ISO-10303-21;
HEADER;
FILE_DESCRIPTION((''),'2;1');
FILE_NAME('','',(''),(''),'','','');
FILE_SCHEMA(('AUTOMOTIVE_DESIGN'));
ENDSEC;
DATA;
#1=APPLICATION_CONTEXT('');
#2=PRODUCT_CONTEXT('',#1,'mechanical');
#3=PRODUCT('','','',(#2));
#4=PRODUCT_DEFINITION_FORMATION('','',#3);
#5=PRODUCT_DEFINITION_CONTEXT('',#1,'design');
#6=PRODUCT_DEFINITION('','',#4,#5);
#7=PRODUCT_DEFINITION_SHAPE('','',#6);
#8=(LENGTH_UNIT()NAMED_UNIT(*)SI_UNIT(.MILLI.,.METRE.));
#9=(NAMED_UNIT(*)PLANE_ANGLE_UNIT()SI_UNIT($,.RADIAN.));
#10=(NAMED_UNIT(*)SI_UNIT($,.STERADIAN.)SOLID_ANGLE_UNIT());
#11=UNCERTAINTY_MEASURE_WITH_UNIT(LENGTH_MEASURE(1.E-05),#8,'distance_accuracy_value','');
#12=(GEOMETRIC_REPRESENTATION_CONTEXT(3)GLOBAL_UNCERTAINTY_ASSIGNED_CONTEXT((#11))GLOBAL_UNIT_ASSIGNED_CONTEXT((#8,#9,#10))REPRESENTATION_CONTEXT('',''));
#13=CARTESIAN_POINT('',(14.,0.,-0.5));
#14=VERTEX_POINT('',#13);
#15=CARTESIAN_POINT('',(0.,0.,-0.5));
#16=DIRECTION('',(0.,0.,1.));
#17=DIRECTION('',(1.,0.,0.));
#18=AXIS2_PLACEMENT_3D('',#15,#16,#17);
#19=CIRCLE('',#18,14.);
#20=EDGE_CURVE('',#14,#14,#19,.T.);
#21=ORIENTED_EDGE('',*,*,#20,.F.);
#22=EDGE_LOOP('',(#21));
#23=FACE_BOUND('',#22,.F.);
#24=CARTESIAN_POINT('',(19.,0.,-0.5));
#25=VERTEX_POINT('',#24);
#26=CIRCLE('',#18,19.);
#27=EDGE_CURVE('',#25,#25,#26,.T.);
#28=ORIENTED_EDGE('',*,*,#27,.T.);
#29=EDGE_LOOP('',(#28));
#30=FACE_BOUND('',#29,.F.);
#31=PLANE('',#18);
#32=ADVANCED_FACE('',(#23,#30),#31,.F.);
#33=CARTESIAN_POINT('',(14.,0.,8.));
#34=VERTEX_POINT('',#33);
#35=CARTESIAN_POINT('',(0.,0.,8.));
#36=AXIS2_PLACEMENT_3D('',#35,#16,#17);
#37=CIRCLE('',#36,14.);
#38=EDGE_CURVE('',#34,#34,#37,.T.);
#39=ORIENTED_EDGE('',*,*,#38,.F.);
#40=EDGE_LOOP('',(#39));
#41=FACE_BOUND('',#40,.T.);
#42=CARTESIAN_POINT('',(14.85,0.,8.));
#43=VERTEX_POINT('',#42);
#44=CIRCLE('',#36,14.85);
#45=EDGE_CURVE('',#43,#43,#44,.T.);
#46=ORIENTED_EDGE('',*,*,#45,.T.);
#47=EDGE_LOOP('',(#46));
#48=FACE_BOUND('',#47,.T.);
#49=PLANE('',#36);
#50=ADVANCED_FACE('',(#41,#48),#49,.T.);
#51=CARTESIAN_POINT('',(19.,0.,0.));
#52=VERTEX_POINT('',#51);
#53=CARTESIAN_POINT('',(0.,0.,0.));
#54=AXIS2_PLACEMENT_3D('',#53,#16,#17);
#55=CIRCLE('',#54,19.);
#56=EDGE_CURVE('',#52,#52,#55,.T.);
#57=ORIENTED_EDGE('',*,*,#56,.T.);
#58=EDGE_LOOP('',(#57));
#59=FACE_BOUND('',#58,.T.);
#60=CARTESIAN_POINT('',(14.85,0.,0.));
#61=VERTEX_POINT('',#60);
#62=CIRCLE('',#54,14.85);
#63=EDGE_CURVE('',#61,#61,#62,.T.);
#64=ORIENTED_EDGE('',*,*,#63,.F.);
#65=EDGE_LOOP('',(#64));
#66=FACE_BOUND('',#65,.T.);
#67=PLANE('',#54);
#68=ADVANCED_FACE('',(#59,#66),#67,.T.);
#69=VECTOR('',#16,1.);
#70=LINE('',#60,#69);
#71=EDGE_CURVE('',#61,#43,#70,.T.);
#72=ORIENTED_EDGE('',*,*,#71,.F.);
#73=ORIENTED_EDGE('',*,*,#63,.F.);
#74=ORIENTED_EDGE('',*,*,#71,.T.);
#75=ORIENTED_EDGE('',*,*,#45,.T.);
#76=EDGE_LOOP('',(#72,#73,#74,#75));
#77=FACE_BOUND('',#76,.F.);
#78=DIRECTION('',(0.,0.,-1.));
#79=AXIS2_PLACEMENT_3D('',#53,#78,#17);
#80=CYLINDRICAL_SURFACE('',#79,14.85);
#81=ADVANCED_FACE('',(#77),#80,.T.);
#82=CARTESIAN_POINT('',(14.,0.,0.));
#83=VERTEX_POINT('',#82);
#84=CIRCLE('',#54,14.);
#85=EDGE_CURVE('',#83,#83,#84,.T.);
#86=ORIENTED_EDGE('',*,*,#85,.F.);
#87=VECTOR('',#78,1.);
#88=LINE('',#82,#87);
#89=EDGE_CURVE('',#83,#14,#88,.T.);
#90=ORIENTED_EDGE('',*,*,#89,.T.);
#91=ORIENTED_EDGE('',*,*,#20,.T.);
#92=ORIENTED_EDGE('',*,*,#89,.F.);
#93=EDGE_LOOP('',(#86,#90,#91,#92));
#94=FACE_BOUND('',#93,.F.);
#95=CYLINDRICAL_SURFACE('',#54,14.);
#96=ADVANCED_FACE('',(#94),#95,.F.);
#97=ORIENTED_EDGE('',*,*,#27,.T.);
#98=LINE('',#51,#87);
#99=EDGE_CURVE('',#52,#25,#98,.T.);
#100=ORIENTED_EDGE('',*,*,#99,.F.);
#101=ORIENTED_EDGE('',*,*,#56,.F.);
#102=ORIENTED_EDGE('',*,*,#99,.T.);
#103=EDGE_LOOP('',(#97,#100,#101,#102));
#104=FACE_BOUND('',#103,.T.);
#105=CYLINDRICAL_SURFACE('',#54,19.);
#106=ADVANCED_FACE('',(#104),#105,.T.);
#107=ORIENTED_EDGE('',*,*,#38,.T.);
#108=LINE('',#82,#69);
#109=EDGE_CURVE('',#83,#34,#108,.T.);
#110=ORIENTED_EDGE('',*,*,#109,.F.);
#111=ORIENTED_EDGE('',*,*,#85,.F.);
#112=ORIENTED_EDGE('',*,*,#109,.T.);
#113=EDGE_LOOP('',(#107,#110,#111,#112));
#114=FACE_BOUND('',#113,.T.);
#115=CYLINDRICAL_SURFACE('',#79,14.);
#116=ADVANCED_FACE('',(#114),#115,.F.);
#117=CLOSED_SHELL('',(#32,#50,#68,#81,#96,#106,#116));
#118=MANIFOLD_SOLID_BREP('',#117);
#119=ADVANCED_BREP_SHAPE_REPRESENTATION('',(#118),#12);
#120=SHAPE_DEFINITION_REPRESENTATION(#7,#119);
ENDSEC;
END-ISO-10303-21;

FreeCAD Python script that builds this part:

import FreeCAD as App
import Part
import Sketcher
from FreeCAD import Vector
Q = App.Units.Quantity

doc = App.newDocument("Part")
body = doc.addObject("PartDesign::Body", "Body")

sketch1 = doc.addObject("Sketcher::SketchObject", "Sketch")
body.addObject(sketch1)
sketch1.AttachmentSupport = (doc.XY_Plane, [""])
sketch1.MapMode = "FlatFace"
sketch1.addGeometry([
    Part.Circle(Vector(0, 0, 0), Vector(0, 0, 1), 15),
    Part.Circle(Vector(0, 0, 0), Vector(0, 0, 1), 14),
], False)
sketch1.addConstraint([
    Sketcher.Constraint("Coincident", 0, 3, -1, 1),
    Sketcher.Constraint("Coincident", 1, 3, -1, 1),
    Sketcher.Constraint("Diameter", 1, Q("28 mm")),
    Sketcher.Constraint("Diameter", 0, Q("29.7 mm")),
])
pad1 = doc.addObject("PartDesign::Pad", "Pad")
body.addObject(pad1)
pad1.Profile = sketch1
pad1.Length = 8

sketch2 = doc.addObject("Sketcher::SketchObject", "Sketch001")
body.addObject(sketch2)
sketch2.AttachmentSupport = (doc.XY_Plane, [""])
sketch2.MapMode = "FlatFace"
sketch2.addGeometry([
    Part.Circle(Vector(0, 0, 0), Vector(0, 0, 1), 19),
    Part.Circle(Vector(0, 0, 0), Vector(0, 0, 1), 14),
], False)
sketch2.addConstraint([
    Sketcher.Constraint("Coincident", 0, 3, -1, 1),
    Sketcher.Constraint("Coincident", 1, 3, -1, 1),
    Sketcher.Constraint("Diameter", 0, Q("38 mm")),
    Sketcher.Constraint("Diameter", 1, Q("28 mm")),
])
pad2 = doc.addObject("PartDesign::Pad", "Pad001")
body.addObject(pad2)
pad2.Profile = sketch2
pad2.Length = 0.5
pad2.Reversed = True

doc.recompute()
